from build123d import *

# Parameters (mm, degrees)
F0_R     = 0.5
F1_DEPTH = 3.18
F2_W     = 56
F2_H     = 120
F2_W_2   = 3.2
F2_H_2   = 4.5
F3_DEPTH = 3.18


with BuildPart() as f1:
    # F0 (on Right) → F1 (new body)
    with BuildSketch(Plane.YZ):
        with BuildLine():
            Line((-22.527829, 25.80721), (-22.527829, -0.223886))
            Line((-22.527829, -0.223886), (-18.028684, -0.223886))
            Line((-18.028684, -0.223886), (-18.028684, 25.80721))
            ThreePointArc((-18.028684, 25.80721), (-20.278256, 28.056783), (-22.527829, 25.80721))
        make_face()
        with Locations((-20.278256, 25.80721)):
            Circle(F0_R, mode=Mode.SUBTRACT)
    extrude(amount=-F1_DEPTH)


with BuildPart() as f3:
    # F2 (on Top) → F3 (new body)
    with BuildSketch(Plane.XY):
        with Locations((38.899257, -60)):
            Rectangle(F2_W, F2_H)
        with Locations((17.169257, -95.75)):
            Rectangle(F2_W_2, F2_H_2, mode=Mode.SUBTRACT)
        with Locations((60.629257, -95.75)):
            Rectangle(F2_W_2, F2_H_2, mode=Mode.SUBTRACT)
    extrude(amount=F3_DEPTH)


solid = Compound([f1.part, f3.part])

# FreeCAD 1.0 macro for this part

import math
import FreeCAD as App
import Part
import Sketcher

V = App.Vector
Q = App.Units.Quantity

doc = App.newDocument("Part")
body = doc.addObject("PartDesign::Body", "Body")

# Sketch on YZ plane
sketch1 = doc.addObject("Sketcher::SketchObject", "Sketch")
body.addObject(sketch1)
sketch1.AttachmentSupport = (doc.YZ_Plane, [""])
sketch1.MapMode = "FlatFace"
sketch1.addGeometry(Part.LineSegment(V(-22.5, 25.8, 0), V(-22.5, -0.2, 0)), False)
sketch1.addGeometry(Part.LineSegment(V(-22.5, -0.2, 0), V(-18, -0.2, 0)), False)
sketch1.addGeometry(Part.LineSegment(V(-18, -0.2, 0), V(-18, 25.8, 0)), False)
sketch1.addGeometry(Part.ArcOfCircle(Part.Circle(V(-20.3, 25.8, 0), V(0, 0, 1), 2.2), math.radians(0), math.radians(180)), False)
sketch1.addGeometry(Part.Circle(V(-20.3, 25.8, 0), V(0, 0, 1), 0.5), False)
sketch1.addConstraint(Sketcher.Constraint("Coincident", 0, 2, 1, 1))
sketch1.addConstraint(Sketcher.Constraint("Coincident", 1, 2, 2, 1))
sketch1.addConstraint(Sketcher.Constraint("Tangent", 2, 2, 3, 1))
sketch1.addConstraint(Sketcher.Constraint("Tangent", 3, 2, 0, 1))
sketch1.addConstraint(Sketcher.Constraint("Vertical", 0))
sketch1.addConstraint(Sketcher.Constraint("Horizontal", 1))
sketch1.addConstraint(Sketcher.Constraint("Vertical", 2))
sketch1.addConstraint(Sketcher.Constraint("Coincident", 4, 3, 3, 3))
sketch1.addConstraint(Sketcher.Constraint("Diameter", 4, Q("1 mm")))
sketch1.addConstraint(Sketcher.Constraint("Radius", 3, Q("2.249573 mm")))
sketch1.addConstraint(Sketcher.Constraint("DistanceY", 0, 2, 0, 1, Q("26.031096 mm")))
sketch1.addConstraint(Sketcher.Constraint("DistanceY", -1, 1, 3, 3, Q("25.807211 mm")))
sketch1.addConstraint(Sketcher.Constraint("DistanceX", 0, 2, -1, 1, Q("22.527829 mm")))
pad1 = doc.addObject("PartDesign::Pad", "Pad")
body.addObject(pad1)
pad1.Profile = sketch1
pad1.Length = 3.18
pad1.Reversed = True
body2 = doc.addObject("PartDesign::Body", "Body001")

# Sketch on XY plane
sketch2 = doc.addObject("Sketcher::SketchObject", "Sketch001")
body2.addObject(sketch2)
sketch2.AttachmentSupport = (doc.getObject("XY_Plane001"), [""])
sketch2.MapMode = "FlatFace"
sketch2.addGeometry(Part.LineSegment(V(10.9, 0, 0), V(10.9, -120, 0)), False)
sketch2.addGeometry(Part.LineSegment(V(10.9, -120, 0), V(66.9, -120, 0)), False)
sketch2.addGeometry(Part.LineSegment(V(66.9, -120, 0), V(66.9, 0, 0)), False)
sketch2.addGeometry(Part.LineSegment(V(66.9, 0, 0), V(10.9, 0, 0)), False)
sketch2.addGeometry(Part.LineSegment(V(18.8, -98, 0), V(15.6, -98, 0)), False)
sketch2.addGeometry(Part.LineSegment(V(15.6, -98, 0), V(15.6, -93.5, 0)), False)
sketch2.addGeometry(Part.LineSegment(V(15.6, -93.5, 0), V(18.8, -93.5, 0)), False)
sketch2.addGeometry(Part.LineSegment(V(18.8, -93.5, 0), V(18.8, -98, 0)), False)
sketch2.addGeometry(Part.LineSegment(V(62.2, -98, 0), V(59, -98, 0)), False)
sketch2.addGeometry(Part.LineSegment(V(59, -98, 0), V(59, -93.5, 0)), False)
sketch2.addGeometry(Part.LineSegment(V(59, -93.5, 0), V(62.2, -93.5, 0)), False)
sketch2.addGeometry(Part.LineSegment(V(62.2, -93.5, 0), V(62.2, -98, 0)), False)
sketch2.addConstraint(Sketcher.Constraint("Coincident", 0, 2, 1, 1))
sketch2.addConstraint(Sketcher.Constraint("Coincident", 1, 2, 2, 1))
sketch2.addConstraint(Sketcher.Constraint("Coincident", 2, 2, 3, 1))
sketch2.addConstraint(Sketcher.Constraint("Coincident", 3, 2, 0, 1))
sketch2.addConstraint(Sketcher.Constraint("Coincident", 4, 2, 5, 1))
sketch2.addConstraint(Sketcher.Constraint("Coincident", 5, 2, 6, 1))
sketch2.addConstraint(Sketcher.Constraint("Coincident", 6, 2, 7, 1))
sketch2.addConstraint(Sketcher.Constraint("Coincident", 7, 2, 4, 1))
sketch2.addConstraint(Sketcher.Constraint("Coincident", 8, 2, 9, 1))
sketch2.addConstraint(Sketcher.Constraint("Coincident", 9, 2, 10, 1))
sketch2.addConstraint(Sketcher.Constraint("Coincident", 10, 2, 11, 1))
sketch2.addConstraint(Sketcher.Constraint("Coincident", 11, 2, 8, 1))
sketch2.addConstraint(Sketcher.Constraint("Vertical", 0))
sketch2.addConstraint(Sketcher.Constraint("Horizontal", 1))
sketch2.addConstraint(Sketcher.Constraint("Vertical", 2))
sketch2.addConstraint(Sketcher.Constraint("Horizontal", 3))
sketch2.addConstraint(Sketcher.Constraint("Horizontal", 4))
sketch2.addConstraint(Sketcher.Constraint("Vertical", 5))
sketch2.addConstraint(Sketcher.Constraint("Horizontal", 6))
sketch2.addConstraint(Sketcher.Constraint("Vertical", 7))
sketch2.addConstraint(Sketcher.Constraint("Horizontal", 8))
sketch2.addConstraint(Sketcher.Constraint("Vertical", 9))
sketch2.addConstraint(Sketcher.Constraint("Horizontal", 10))
sketch2.addConstraint(Sketcher.Constraint("Vertical", 11))
sketch2.addConstraint(Sketcher.Constraint("PointOnObject", 2, 2, -1))
sketch2.addConstraint(Sketcher.Constraint("Horizontal", 7, 2, 8, 2))
sketch2.addConstraint(Sketcher.Constraint("Horizontal", 6, 2, 9, 2))
sketch2.addConstraint(Sketcher.Constraint("Equal", 6, 8))
sketch2.addConstraint(Sketcher.Constraint("DistanceX", 1, 1, 1, 2, Q("56 mm")))
sketch2.addConstraint(Sketcher.Constraint("DistanceY", 0, 2, 0, 1, Q("120 mm")))
sketch2.addConstraint(Sketcher.Constraint("DistanceX", 4, 2, 4, 1, Q("3.2 mm")))
sketch2.addConstraint(Sketcher.Constraint("DistanceY", 5, 1, 5, 2, Q("4.5 mm")))
sketch2.addConstraint(Sketcher.Constraint("DistanceY", 4, 2, -1, 1, Q("98 mm")))
sketch2.addConstraint(Sketcher.Constraint("DistanceX", 0, 2, 4, 2, Q("4.67 mm")))
sketch2.addConstraint(Sketcher.Constraint("DistanceX", 8, 2, 1, 2, Q("7.87 mm")))
sketch2.addConstraint(Sketcher.Constraint("DistanceX", -1, 1, 0, 2, Q("10.899257 mm")))
pad2 = doc.addObject("PartDesign::Pad", "Pad001")
body2.addObject(pad2)
pad2.Profile = sketch2
pad2.Length = 3.18

doc.recompute()
